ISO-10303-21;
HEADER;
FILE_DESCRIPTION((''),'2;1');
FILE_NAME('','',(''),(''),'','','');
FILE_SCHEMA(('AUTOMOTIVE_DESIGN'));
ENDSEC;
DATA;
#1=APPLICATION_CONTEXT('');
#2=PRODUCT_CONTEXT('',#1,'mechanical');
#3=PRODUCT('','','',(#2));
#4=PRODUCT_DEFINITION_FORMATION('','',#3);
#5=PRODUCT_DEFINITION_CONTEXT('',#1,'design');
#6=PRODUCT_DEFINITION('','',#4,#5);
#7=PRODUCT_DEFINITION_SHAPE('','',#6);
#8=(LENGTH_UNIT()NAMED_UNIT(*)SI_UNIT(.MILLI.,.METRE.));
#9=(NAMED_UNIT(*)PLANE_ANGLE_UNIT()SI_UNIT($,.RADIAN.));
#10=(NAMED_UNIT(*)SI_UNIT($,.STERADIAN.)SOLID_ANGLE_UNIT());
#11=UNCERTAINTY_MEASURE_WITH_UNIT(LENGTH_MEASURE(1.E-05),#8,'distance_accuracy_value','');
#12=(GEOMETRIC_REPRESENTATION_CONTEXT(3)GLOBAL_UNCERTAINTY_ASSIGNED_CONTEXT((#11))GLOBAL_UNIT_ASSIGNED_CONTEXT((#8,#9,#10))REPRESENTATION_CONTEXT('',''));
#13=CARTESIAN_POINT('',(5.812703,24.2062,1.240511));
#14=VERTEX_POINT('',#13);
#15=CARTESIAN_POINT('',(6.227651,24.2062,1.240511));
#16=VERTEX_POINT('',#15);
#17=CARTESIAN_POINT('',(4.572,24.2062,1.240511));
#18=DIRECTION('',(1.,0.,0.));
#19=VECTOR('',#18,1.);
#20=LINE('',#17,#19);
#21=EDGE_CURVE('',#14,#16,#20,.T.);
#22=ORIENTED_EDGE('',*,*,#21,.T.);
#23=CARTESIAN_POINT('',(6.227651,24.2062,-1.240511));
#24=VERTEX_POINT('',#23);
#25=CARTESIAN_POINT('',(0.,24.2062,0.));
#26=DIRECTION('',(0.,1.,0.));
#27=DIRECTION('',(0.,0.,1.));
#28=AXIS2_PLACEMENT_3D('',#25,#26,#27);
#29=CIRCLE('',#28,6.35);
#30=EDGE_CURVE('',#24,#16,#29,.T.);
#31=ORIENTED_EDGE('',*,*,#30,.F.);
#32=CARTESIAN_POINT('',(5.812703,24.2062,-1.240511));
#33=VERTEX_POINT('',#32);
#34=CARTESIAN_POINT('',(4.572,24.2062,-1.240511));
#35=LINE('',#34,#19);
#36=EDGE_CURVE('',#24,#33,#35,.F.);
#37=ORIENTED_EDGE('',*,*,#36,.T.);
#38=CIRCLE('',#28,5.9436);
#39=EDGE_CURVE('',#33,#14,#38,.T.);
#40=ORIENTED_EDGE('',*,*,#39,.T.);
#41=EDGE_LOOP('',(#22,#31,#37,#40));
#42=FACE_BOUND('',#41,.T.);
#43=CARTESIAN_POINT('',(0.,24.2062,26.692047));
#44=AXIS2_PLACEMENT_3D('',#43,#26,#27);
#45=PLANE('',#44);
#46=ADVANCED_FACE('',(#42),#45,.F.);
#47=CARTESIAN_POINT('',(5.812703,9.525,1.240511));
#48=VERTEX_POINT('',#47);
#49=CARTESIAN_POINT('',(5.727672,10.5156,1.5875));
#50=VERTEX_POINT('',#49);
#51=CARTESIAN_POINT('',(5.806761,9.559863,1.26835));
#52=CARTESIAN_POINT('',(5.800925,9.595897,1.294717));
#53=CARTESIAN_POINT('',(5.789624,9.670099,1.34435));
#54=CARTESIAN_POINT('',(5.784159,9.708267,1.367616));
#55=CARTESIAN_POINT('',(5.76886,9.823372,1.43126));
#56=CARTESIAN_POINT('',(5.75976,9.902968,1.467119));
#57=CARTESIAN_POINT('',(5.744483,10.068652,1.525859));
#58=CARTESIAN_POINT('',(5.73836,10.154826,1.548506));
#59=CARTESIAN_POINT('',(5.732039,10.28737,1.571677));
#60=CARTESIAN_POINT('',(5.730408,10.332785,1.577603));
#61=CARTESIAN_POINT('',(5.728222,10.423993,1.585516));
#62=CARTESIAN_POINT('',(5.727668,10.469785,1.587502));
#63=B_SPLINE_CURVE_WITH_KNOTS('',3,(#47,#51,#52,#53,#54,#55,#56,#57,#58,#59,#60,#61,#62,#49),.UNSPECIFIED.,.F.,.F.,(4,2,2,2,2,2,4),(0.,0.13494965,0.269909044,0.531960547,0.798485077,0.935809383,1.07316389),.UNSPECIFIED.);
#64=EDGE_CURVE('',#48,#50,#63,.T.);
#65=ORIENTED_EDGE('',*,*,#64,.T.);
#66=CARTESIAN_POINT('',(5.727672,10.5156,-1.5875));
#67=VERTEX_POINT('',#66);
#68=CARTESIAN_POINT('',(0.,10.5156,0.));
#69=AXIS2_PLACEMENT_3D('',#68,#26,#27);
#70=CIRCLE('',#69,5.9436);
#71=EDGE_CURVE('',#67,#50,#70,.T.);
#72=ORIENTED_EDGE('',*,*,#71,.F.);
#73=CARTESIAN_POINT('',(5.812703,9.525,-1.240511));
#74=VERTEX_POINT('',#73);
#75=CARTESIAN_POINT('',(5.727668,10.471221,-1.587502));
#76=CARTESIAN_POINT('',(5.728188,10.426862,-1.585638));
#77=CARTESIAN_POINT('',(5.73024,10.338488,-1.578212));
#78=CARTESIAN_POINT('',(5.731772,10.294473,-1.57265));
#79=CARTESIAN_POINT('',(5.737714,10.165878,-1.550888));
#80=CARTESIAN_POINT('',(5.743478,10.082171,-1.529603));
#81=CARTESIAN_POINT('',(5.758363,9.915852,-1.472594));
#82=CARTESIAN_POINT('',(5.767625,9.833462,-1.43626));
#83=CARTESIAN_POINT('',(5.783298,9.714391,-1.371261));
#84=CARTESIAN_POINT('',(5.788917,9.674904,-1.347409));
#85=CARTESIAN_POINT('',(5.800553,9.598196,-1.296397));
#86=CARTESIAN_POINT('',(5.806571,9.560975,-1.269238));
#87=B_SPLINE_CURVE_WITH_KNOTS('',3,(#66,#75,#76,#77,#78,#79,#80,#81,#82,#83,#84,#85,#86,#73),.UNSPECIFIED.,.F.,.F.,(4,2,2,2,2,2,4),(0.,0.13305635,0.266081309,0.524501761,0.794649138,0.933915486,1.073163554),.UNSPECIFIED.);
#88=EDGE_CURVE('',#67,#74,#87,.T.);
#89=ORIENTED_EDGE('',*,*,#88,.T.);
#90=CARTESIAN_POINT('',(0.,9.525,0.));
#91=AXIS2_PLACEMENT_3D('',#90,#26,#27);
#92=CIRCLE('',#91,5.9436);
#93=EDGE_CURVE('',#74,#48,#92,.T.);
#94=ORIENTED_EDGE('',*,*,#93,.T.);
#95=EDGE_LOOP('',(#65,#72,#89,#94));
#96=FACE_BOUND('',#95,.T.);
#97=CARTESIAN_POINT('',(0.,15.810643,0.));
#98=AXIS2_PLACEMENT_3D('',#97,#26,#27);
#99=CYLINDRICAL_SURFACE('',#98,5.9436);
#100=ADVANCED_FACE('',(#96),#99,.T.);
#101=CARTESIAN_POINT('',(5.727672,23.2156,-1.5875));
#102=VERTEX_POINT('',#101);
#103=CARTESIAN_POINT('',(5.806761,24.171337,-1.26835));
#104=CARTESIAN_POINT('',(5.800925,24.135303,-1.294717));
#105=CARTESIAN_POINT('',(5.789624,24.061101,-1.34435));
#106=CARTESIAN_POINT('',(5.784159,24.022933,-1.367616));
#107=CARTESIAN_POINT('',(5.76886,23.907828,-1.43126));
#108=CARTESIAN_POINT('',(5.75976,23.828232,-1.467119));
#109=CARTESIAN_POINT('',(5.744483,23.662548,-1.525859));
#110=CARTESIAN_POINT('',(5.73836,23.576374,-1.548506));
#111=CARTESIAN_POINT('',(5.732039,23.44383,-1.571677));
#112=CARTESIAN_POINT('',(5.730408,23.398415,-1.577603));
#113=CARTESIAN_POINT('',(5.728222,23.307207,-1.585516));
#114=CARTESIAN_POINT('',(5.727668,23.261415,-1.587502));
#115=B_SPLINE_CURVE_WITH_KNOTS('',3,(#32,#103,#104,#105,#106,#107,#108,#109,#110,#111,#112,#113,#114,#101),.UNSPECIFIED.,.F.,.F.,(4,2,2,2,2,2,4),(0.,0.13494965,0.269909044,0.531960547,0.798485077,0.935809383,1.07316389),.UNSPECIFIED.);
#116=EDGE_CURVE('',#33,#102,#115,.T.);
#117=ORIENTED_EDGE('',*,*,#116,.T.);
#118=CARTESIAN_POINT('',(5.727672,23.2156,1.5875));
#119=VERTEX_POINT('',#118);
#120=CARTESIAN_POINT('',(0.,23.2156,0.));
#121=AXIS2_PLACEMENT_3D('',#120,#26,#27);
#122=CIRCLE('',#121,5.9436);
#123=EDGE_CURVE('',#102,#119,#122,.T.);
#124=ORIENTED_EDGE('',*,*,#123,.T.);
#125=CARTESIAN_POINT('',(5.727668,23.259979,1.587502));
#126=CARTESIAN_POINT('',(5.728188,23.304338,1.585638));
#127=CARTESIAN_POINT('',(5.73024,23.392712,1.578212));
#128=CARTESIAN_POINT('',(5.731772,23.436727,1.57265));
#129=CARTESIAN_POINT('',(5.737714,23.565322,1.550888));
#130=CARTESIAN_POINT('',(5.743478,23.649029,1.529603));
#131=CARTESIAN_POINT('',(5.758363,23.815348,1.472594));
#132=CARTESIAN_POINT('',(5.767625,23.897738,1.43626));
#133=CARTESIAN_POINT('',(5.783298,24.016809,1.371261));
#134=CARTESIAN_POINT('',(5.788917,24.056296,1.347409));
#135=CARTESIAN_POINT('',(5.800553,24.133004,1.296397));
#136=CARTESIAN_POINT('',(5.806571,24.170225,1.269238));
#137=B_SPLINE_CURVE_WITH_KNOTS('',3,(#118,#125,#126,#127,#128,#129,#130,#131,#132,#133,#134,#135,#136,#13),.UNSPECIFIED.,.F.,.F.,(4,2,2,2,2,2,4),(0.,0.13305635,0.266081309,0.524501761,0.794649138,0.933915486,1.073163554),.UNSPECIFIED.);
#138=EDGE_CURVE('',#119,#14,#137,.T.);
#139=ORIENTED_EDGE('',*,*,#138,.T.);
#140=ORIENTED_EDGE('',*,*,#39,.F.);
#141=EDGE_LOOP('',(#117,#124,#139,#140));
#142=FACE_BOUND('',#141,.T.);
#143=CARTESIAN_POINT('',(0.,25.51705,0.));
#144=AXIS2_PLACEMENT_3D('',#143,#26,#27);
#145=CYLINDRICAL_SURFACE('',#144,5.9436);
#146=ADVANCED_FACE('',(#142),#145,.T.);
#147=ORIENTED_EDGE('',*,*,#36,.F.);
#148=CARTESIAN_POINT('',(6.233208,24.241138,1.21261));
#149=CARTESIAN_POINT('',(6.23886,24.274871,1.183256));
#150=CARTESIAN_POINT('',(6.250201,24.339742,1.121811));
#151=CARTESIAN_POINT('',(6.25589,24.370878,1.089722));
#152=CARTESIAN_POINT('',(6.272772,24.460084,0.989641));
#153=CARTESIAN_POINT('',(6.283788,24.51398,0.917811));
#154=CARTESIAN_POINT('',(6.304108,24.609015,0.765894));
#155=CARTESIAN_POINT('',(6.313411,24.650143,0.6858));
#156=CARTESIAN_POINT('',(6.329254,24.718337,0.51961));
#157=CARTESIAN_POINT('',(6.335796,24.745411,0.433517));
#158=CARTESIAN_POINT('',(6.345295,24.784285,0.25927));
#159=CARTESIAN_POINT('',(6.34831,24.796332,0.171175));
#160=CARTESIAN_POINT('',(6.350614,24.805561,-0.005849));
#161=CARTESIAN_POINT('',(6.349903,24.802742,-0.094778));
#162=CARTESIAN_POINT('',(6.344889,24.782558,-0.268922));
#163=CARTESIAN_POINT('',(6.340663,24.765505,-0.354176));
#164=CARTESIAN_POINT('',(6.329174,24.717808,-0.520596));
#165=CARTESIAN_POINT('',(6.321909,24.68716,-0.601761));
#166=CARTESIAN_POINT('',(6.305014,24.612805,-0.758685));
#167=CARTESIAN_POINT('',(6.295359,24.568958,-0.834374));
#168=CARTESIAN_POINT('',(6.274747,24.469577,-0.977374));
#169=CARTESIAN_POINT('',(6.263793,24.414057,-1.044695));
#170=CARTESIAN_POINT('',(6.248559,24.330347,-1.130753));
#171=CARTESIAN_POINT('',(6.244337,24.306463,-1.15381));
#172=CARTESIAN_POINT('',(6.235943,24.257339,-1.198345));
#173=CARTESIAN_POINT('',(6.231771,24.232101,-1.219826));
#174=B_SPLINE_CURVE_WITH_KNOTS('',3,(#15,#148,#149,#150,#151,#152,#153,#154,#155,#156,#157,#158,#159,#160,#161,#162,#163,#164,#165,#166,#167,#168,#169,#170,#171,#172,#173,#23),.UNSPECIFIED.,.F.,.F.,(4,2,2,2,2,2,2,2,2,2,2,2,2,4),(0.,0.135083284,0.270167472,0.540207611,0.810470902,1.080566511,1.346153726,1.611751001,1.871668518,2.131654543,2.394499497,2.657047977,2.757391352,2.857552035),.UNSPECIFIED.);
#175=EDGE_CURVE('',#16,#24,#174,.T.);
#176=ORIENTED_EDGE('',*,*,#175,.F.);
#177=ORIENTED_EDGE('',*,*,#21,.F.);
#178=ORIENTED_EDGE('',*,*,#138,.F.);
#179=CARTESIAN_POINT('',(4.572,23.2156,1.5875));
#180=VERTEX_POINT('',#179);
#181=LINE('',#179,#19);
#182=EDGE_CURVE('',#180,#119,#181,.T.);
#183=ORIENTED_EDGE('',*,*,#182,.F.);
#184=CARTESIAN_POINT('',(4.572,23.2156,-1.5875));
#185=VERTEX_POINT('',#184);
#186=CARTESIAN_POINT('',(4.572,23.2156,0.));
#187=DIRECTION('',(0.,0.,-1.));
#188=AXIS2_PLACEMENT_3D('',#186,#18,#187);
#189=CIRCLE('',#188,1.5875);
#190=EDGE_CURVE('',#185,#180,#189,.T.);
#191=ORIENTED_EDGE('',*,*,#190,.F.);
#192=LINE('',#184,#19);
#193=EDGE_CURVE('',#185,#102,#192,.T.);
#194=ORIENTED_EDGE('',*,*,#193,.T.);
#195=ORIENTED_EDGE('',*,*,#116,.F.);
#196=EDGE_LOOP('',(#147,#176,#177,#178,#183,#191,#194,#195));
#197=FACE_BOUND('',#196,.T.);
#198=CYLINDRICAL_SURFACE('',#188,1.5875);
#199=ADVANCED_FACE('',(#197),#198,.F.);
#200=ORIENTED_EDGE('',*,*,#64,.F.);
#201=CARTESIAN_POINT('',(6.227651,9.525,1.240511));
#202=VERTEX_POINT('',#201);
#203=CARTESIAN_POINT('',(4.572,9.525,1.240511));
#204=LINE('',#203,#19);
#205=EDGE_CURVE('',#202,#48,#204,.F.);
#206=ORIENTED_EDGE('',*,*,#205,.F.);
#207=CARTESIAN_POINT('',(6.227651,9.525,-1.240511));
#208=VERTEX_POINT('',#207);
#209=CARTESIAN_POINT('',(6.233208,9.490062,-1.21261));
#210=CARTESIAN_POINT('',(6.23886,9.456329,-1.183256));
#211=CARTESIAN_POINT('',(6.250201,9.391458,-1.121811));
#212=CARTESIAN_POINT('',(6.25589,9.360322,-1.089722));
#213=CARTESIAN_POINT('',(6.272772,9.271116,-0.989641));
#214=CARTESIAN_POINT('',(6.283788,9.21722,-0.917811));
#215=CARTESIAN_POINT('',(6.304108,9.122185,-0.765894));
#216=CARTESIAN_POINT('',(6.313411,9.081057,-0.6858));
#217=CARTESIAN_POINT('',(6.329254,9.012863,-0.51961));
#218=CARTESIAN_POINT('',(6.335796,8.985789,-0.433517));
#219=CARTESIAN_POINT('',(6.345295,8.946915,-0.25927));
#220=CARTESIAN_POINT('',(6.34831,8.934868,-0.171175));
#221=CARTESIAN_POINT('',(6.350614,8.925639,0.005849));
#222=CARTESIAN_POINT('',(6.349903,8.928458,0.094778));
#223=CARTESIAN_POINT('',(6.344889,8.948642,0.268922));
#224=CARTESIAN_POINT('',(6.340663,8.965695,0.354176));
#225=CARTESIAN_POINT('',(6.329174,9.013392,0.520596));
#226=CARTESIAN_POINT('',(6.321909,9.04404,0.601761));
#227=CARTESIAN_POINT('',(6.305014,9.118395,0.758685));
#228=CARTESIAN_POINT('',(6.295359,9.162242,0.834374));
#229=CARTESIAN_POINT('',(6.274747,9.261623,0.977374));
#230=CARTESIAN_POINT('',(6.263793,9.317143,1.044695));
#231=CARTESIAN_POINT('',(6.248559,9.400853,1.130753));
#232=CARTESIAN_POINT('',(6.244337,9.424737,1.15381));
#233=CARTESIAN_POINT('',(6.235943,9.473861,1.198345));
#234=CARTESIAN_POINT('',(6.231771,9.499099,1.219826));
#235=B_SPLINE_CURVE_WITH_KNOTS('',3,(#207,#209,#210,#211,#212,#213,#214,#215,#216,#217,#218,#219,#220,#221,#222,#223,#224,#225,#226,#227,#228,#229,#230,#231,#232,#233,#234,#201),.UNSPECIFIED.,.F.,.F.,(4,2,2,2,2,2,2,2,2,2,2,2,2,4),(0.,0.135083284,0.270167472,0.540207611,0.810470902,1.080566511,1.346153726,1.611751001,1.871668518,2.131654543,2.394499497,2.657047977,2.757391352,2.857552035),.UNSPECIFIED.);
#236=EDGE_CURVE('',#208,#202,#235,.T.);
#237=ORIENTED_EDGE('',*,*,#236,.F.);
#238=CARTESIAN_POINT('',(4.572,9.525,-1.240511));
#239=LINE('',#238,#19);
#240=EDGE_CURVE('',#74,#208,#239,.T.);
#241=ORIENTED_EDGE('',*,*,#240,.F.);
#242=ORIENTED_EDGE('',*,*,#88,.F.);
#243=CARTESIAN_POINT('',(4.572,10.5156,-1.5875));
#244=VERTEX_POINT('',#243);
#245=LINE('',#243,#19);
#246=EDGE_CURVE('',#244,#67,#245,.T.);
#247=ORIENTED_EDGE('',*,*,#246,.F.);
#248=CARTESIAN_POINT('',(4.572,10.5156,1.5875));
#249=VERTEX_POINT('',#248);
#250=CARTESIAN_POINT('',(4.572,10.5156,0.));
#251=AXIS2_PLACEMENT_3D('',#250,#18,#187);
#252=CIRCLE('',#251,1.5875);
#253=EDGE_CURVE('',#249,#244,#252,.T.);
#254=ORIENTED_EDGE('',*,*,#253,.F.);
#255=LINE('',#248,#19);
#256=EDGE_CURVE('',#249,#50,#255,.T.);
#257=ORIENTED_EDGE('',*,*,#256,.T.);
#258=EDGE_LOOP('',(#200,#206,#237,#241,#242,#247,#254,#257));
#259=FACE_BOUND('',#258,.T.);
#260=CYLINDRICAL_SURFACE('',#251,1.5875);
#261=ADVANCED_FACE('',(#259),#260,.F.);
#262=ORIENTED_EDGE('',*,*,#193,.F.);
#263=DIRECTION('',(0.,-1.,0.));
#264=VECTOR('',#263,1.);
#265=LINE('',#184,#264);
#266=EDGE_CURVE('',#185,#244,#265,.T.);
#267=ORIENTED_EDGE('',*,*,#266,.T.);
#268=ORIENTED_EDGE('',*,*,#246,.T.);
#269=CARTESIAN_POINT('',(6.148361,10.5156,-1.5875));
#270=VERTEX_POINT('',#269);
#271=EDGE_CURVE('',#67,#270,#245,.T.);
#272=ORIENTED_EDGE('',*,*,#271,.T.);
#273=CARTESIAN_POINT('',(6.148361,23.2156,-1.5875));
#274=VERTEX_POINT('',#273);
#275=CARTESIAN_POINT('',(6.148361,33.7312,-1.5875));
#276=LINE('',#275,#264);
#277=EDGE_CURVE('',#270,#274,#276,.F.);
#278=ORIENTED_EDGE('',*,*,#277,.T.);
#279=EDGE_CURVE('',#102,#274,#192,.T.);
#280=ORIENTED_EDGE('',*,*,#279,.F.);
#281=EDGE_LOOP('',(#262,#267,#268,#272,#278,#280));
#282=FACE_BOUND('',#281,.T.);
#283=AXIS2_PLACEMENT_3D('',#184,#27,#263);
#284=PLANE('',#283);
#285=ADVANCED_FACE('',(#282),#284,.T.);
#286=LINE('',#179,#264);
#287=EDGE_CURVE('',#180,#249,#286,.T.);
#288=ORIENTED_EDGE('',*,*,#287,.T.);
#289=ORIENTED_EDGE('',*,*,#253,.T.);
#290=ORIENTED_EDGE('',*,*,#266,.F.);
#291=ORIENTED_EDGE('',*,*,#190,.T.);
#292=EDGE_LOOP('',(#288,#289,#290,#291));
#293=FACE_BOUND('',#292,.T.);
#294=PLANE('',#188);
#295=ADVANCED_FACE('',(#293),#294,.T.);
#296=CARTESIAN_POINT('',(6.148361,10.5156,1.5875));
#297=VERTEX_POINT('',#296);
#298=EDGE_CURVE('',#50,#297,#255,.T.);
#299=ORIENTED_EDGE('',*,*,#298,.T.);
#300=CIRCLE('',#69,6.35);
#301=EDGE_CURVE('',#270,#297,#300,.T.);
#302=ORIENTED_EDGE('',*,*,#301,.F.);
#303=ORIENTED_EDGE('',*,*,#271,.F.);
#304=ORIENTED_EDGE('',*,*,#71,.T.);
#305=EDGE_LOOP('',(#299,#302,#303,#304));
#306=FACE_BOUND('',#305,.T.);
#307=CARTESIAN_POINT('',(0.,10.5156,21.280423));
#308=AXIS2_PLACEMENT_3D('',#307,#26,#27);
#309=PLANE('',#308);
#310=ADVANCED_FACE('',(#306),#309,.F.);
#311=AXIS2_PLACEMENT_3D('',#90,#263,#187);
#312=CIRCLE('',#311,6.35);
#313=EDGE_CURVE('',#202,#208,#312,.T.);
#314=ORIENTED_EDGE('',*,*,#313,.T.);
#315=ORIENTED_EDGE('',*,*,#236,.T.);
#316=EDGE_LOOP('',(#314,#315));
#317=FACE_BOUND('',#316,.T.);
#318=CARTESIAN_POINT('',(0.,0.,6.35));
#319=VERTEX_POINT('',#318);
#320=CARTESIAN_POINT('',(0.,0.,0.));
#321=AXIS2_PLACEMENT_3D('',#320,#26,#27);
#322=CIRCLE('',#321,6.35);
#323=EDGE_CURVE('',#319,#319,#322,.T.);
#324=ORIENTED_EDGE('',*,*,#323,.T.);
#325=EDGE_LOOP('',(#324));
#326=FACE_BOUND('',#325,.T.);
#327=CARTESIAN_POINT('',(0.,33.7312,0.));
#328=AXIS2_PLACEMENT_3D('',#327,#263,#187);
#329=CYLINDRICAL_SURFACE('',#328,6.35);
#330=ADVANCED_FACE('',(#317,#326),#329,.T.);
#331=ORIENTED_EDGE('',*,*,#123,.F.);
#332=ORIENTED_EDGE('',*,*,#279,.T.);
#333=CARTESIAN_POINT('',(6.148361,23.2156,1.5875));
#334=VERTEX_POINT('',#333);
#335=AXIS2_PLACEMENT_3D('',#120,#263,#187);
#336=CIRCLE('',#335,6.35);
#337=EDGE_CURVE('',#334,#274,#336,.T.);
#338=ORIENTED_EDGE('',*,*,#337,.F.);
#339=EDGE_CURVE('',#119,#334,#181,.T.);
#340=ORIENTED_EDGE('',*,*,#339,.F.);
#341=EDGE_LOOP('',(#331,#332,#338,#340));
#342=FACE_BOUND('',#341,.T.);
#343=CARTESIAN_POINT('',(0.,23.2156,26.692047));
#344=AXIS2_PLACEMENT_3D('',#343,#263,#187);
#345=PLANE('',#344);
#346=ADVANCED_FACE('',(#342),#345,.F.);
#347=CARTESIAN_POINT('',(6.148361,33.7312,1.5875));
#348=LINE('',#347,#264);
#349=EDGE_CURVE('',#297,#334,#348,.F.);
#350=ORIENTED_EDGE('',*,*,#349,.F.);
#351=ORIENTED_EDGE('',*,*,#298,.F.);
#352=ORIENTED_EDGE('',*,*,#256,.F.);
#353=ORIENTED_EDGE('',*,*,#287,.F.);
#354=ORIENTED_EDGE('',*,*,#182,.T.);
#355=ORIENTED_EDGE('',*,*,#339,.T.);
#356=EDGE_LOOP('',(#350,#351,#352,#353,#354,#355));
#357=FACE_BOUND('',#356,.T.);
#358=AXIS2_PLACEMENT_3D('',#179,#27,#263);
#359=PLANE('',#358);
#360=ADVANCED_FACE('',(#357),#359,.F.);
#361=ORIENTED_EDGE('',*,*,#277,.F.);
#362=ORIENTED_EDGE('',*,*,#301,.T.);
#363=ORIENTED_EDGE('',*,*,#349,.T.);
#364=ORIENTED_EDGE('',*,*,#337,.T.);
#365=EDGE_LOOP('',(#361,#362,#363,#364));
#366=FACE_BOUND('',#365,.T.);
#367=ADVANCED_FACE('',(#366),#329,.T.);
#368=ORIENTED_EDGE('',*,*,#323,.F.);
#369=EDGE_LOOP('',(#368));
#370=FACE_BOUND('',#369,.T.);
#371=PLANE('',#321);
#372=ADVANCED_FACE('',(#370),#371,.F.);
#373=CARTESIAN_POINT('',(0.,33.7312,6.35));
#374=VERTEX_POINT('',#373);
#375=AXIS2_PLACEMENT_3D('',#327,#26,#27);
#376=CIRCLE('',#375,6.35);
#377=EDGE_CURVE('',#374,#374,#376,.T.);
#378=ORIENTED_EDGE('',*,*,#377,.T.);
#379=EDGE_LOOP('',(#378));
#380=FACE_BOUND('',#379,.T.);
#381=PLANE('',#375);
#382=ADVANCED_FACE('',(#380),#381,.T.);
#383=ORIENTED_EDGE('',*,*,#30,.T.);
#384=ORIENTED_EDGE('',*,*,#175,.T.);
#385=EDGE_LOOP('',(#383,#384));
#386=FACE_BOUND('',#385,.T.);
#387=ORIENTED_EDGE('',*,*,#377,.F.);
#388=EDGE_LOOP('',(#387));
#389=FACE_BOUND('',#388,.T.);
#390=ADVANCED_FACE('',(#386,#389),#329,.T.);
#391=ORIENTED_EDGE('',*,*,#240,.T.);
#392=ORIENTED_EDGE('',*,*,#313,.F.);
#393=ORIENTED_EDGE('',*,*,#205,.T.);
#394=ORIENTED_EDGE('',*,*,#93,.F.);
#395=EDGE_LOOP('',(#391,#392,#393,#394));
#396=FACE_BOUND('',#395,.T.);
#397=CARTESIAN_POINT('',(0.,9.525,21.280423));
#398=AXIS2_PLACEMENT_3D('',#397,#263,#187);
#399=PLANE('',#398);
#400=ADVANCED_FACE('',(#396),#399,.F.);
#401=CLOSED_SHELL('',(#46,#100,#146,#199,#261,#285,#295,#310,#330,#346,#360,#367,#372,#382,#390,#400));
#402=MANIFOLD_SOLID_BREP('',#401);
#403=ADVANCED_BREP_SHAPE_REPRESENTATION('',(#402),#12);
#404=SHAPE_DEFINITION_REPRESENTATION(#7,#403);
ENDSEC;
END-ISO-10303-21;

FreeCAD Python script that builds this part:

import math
import FreeCAD as App
import Part
import Sketcher
Q = App.Units.Quantity


def add_polygon(sketch, points):
    """Adds a closed chain of lines whose ends are joined by coincident constraints."""
    first, n = sketch.GeometryCount, len(points)
    for a, b in zip(points, points[1:] + points[:1]):
        sketch.addGeometry(Part.LineSegment(App.Vector(*a, 0), App.Vector(*b, 0)), False)
    for i in range(n):
        sketch.addConstraint(Sketcher.Constraint("Coincident", first + i, 2, first + (i + 1) % n, 1))

doc = App.newDocument("Part")
body = doc.addObject("PartDesign::Body", "Body")

# Sketch on XZ plane
sketch1 = doc.addObject("Sketcher::SketchObject", "Sketch")
body.addObject(sketch1)
sketch1.AttachmentSupport = (doc.XZ_Plane, [""])
sketch1.MapMode = "FlatFace"
sketch1.addGeometry(Part.Circle(App.Vector(0, 0, 0), App.Vector(0, 0, 1), 6), False)
sketch1.addConstraint([
    Sketcher.Constraint("Coincident", 0, 3, -1, 1),
    Sketcher.Constraint("Diameter", 0, Q("0.5 in")),
])
pad1 = doc.addObject("PartDesign::Pad", "Pad")
body.addObject(pad1)
pad1.Profile = sketch1
pad1.Length = Q("1.328 in")
pad1.Reversed = True

# Sketch on YZ plane
sketch2 = doc.addObject("Sketcher::SketchObject", "Sketch001")
body.addObject(sketch2)
sketch2.AttachmentSupport = (doc.YZ_Plane, [""])
sketch2.MapMode = "FlatFace"
add_polygon(sketch2, [(24.2, 26.7), (23.2, 26.7), (23.2, 5.9), (24.2, 5.9)])  # lines 0-3
sketch2.addConstraint([
    Sketcher.Constraint("Horizontal", 0),
    Sketcher.Constraint("Vertical", 1),
    Sketcher.Constraint("Horizontal", 2),
    Sketcher.Constraint("Vertical", 3),
    Sketcher.Constraint("DistanceX", 0, 2, 0, 1, Q("0.039 in")),
    Sketcher.Constraint("DistanceX", -1, 1, 0, 2, Q("0.914 in")),
    Sketcher.Constraint("DistanceY", -1, 1, 1, 2, Q("0.234 in")),
    Sketcher.Constraint("DistanceY", 1, 2, 1, 1, Q("20.748447 mm")),
])
groove = doc.addObject("PartDesign::Groove", "Groove")
body.addObject(groove)
groove.Profile = sketch2
groove.ReferenceAxis = (sketch2, ["H_Axis"])
groove.Angle = 360

# Sketch on YZ plane
sketch3 = doc.addObject("Sketcher::SketchObject", "Sketch002")
body.addObject(sketch3)
sketch3.AttachmentSupport = (doc.YZ_Plane, [""])
sketch3.MapMode = "FlatFace"
add_polygon(sketch3, [(10.5, 21.3), (9.5, 21.3), (9.5, 5.9), (10.5, 5.9)])  # lines 0-3
sketch3.addConstraint([
    Sketcher.Constraint("Horizontal", 0),
    Sketcher.Constraint("Vertical", 1),
    Sketcher.Constraint("Horizontal", 2),
    Sketcher.Constraint("Vertical", 3),
    Sketcher.Constraint("DistanceX", 0, 2, 0, 1, Q("0.039 in")),
    Sketcher.Constraint("DistanceX", -1, 1, 0, 2, Q("0.375 in")),
    Sketcher.Constraint("DistanceY", -1, 1, 1, 2, Q("0.234 in")),
    Sketcher.Constraint("DistanceY", 1, 2, 1, 1, Q("15.336823 mm")),
])
groove2 = doc.addObject("PartDesign::Groove", "Groove001")
body.addObject(groove2)
groove2.Profile = sketch3
groove2.ReferenceAxis = (sketch3, ["H_Axis"])
groove2.Angle = 360

# Sketch on YZ plane
sketch4 = doc.addObject("Sketcher::SketchObject", "Sketch003")
body.addObject(sketch4)
sketch4.AttachmentSupport = (doc.YZ_Plane, [""])
sketch4.MapMode = "FlatFace"
sketch4.AttachmentOffset = App.Placement(App.Vector(0, 0, 0.25 * 25.4), App.Rotation())
sketch4.addGeometry([
    Part.LineSegment(App.Vector(10.5, -1.6, 0), App.Vector(23.2, -1.6, 0)),
    Part.ArcOfCircle(Part.Circle(App.Vector(23.2, 0, 0), App.Vector(0, 0, 1), 1.6), math.radians(-90), math.radians(90)),
    Part.LineSegment(App.Vector(23.2, 1.6, 0), App.Vector(10.5, 1.6, 0)),
    Part.ArcOfCircle(Part.Circle(App.Vector(10.5, 0, 0), App.Vector(0, 0, 1), 1.6), math.radians(90), math.radians(270)),
], False)
sketch4.addConstraint([
    Sketcher.Constraint("Tangent", 0, 2, 1, 1),
    Sketcher.Constraint("Tangent", 1, 2, 2, 1),
    Sketcher.Constraint("Tangent", 2, 2, 3, 1),
    Sketcher.Constraint("Tangent", 3, 2, 0, 1),
    Sketcher.Constraint("Horizontal", 0),
    Sketcher.Constraint("Horizontal", 2),
    Sketcher.Constraint("PointOnObject", 1, 3, -1),
    Sketcher.Constraint("DistanceX", 0, 1, 0, 2, Q("0.5 in")),
    Sketcher.Constraint("Radius", 1, Q("0.0625 in")),
    Sketcher.Constraint("DistanceX", -1, 1, 1, 3, Q("0.914 in")),
])
pocket1 = doc.addObject("PartDesign::Pocket", "Pocket")
body.addObject(pocket1)
pocket1.Profile = sketch4
pocket1.Length = Q("0.07 in")

doc.recompute()
